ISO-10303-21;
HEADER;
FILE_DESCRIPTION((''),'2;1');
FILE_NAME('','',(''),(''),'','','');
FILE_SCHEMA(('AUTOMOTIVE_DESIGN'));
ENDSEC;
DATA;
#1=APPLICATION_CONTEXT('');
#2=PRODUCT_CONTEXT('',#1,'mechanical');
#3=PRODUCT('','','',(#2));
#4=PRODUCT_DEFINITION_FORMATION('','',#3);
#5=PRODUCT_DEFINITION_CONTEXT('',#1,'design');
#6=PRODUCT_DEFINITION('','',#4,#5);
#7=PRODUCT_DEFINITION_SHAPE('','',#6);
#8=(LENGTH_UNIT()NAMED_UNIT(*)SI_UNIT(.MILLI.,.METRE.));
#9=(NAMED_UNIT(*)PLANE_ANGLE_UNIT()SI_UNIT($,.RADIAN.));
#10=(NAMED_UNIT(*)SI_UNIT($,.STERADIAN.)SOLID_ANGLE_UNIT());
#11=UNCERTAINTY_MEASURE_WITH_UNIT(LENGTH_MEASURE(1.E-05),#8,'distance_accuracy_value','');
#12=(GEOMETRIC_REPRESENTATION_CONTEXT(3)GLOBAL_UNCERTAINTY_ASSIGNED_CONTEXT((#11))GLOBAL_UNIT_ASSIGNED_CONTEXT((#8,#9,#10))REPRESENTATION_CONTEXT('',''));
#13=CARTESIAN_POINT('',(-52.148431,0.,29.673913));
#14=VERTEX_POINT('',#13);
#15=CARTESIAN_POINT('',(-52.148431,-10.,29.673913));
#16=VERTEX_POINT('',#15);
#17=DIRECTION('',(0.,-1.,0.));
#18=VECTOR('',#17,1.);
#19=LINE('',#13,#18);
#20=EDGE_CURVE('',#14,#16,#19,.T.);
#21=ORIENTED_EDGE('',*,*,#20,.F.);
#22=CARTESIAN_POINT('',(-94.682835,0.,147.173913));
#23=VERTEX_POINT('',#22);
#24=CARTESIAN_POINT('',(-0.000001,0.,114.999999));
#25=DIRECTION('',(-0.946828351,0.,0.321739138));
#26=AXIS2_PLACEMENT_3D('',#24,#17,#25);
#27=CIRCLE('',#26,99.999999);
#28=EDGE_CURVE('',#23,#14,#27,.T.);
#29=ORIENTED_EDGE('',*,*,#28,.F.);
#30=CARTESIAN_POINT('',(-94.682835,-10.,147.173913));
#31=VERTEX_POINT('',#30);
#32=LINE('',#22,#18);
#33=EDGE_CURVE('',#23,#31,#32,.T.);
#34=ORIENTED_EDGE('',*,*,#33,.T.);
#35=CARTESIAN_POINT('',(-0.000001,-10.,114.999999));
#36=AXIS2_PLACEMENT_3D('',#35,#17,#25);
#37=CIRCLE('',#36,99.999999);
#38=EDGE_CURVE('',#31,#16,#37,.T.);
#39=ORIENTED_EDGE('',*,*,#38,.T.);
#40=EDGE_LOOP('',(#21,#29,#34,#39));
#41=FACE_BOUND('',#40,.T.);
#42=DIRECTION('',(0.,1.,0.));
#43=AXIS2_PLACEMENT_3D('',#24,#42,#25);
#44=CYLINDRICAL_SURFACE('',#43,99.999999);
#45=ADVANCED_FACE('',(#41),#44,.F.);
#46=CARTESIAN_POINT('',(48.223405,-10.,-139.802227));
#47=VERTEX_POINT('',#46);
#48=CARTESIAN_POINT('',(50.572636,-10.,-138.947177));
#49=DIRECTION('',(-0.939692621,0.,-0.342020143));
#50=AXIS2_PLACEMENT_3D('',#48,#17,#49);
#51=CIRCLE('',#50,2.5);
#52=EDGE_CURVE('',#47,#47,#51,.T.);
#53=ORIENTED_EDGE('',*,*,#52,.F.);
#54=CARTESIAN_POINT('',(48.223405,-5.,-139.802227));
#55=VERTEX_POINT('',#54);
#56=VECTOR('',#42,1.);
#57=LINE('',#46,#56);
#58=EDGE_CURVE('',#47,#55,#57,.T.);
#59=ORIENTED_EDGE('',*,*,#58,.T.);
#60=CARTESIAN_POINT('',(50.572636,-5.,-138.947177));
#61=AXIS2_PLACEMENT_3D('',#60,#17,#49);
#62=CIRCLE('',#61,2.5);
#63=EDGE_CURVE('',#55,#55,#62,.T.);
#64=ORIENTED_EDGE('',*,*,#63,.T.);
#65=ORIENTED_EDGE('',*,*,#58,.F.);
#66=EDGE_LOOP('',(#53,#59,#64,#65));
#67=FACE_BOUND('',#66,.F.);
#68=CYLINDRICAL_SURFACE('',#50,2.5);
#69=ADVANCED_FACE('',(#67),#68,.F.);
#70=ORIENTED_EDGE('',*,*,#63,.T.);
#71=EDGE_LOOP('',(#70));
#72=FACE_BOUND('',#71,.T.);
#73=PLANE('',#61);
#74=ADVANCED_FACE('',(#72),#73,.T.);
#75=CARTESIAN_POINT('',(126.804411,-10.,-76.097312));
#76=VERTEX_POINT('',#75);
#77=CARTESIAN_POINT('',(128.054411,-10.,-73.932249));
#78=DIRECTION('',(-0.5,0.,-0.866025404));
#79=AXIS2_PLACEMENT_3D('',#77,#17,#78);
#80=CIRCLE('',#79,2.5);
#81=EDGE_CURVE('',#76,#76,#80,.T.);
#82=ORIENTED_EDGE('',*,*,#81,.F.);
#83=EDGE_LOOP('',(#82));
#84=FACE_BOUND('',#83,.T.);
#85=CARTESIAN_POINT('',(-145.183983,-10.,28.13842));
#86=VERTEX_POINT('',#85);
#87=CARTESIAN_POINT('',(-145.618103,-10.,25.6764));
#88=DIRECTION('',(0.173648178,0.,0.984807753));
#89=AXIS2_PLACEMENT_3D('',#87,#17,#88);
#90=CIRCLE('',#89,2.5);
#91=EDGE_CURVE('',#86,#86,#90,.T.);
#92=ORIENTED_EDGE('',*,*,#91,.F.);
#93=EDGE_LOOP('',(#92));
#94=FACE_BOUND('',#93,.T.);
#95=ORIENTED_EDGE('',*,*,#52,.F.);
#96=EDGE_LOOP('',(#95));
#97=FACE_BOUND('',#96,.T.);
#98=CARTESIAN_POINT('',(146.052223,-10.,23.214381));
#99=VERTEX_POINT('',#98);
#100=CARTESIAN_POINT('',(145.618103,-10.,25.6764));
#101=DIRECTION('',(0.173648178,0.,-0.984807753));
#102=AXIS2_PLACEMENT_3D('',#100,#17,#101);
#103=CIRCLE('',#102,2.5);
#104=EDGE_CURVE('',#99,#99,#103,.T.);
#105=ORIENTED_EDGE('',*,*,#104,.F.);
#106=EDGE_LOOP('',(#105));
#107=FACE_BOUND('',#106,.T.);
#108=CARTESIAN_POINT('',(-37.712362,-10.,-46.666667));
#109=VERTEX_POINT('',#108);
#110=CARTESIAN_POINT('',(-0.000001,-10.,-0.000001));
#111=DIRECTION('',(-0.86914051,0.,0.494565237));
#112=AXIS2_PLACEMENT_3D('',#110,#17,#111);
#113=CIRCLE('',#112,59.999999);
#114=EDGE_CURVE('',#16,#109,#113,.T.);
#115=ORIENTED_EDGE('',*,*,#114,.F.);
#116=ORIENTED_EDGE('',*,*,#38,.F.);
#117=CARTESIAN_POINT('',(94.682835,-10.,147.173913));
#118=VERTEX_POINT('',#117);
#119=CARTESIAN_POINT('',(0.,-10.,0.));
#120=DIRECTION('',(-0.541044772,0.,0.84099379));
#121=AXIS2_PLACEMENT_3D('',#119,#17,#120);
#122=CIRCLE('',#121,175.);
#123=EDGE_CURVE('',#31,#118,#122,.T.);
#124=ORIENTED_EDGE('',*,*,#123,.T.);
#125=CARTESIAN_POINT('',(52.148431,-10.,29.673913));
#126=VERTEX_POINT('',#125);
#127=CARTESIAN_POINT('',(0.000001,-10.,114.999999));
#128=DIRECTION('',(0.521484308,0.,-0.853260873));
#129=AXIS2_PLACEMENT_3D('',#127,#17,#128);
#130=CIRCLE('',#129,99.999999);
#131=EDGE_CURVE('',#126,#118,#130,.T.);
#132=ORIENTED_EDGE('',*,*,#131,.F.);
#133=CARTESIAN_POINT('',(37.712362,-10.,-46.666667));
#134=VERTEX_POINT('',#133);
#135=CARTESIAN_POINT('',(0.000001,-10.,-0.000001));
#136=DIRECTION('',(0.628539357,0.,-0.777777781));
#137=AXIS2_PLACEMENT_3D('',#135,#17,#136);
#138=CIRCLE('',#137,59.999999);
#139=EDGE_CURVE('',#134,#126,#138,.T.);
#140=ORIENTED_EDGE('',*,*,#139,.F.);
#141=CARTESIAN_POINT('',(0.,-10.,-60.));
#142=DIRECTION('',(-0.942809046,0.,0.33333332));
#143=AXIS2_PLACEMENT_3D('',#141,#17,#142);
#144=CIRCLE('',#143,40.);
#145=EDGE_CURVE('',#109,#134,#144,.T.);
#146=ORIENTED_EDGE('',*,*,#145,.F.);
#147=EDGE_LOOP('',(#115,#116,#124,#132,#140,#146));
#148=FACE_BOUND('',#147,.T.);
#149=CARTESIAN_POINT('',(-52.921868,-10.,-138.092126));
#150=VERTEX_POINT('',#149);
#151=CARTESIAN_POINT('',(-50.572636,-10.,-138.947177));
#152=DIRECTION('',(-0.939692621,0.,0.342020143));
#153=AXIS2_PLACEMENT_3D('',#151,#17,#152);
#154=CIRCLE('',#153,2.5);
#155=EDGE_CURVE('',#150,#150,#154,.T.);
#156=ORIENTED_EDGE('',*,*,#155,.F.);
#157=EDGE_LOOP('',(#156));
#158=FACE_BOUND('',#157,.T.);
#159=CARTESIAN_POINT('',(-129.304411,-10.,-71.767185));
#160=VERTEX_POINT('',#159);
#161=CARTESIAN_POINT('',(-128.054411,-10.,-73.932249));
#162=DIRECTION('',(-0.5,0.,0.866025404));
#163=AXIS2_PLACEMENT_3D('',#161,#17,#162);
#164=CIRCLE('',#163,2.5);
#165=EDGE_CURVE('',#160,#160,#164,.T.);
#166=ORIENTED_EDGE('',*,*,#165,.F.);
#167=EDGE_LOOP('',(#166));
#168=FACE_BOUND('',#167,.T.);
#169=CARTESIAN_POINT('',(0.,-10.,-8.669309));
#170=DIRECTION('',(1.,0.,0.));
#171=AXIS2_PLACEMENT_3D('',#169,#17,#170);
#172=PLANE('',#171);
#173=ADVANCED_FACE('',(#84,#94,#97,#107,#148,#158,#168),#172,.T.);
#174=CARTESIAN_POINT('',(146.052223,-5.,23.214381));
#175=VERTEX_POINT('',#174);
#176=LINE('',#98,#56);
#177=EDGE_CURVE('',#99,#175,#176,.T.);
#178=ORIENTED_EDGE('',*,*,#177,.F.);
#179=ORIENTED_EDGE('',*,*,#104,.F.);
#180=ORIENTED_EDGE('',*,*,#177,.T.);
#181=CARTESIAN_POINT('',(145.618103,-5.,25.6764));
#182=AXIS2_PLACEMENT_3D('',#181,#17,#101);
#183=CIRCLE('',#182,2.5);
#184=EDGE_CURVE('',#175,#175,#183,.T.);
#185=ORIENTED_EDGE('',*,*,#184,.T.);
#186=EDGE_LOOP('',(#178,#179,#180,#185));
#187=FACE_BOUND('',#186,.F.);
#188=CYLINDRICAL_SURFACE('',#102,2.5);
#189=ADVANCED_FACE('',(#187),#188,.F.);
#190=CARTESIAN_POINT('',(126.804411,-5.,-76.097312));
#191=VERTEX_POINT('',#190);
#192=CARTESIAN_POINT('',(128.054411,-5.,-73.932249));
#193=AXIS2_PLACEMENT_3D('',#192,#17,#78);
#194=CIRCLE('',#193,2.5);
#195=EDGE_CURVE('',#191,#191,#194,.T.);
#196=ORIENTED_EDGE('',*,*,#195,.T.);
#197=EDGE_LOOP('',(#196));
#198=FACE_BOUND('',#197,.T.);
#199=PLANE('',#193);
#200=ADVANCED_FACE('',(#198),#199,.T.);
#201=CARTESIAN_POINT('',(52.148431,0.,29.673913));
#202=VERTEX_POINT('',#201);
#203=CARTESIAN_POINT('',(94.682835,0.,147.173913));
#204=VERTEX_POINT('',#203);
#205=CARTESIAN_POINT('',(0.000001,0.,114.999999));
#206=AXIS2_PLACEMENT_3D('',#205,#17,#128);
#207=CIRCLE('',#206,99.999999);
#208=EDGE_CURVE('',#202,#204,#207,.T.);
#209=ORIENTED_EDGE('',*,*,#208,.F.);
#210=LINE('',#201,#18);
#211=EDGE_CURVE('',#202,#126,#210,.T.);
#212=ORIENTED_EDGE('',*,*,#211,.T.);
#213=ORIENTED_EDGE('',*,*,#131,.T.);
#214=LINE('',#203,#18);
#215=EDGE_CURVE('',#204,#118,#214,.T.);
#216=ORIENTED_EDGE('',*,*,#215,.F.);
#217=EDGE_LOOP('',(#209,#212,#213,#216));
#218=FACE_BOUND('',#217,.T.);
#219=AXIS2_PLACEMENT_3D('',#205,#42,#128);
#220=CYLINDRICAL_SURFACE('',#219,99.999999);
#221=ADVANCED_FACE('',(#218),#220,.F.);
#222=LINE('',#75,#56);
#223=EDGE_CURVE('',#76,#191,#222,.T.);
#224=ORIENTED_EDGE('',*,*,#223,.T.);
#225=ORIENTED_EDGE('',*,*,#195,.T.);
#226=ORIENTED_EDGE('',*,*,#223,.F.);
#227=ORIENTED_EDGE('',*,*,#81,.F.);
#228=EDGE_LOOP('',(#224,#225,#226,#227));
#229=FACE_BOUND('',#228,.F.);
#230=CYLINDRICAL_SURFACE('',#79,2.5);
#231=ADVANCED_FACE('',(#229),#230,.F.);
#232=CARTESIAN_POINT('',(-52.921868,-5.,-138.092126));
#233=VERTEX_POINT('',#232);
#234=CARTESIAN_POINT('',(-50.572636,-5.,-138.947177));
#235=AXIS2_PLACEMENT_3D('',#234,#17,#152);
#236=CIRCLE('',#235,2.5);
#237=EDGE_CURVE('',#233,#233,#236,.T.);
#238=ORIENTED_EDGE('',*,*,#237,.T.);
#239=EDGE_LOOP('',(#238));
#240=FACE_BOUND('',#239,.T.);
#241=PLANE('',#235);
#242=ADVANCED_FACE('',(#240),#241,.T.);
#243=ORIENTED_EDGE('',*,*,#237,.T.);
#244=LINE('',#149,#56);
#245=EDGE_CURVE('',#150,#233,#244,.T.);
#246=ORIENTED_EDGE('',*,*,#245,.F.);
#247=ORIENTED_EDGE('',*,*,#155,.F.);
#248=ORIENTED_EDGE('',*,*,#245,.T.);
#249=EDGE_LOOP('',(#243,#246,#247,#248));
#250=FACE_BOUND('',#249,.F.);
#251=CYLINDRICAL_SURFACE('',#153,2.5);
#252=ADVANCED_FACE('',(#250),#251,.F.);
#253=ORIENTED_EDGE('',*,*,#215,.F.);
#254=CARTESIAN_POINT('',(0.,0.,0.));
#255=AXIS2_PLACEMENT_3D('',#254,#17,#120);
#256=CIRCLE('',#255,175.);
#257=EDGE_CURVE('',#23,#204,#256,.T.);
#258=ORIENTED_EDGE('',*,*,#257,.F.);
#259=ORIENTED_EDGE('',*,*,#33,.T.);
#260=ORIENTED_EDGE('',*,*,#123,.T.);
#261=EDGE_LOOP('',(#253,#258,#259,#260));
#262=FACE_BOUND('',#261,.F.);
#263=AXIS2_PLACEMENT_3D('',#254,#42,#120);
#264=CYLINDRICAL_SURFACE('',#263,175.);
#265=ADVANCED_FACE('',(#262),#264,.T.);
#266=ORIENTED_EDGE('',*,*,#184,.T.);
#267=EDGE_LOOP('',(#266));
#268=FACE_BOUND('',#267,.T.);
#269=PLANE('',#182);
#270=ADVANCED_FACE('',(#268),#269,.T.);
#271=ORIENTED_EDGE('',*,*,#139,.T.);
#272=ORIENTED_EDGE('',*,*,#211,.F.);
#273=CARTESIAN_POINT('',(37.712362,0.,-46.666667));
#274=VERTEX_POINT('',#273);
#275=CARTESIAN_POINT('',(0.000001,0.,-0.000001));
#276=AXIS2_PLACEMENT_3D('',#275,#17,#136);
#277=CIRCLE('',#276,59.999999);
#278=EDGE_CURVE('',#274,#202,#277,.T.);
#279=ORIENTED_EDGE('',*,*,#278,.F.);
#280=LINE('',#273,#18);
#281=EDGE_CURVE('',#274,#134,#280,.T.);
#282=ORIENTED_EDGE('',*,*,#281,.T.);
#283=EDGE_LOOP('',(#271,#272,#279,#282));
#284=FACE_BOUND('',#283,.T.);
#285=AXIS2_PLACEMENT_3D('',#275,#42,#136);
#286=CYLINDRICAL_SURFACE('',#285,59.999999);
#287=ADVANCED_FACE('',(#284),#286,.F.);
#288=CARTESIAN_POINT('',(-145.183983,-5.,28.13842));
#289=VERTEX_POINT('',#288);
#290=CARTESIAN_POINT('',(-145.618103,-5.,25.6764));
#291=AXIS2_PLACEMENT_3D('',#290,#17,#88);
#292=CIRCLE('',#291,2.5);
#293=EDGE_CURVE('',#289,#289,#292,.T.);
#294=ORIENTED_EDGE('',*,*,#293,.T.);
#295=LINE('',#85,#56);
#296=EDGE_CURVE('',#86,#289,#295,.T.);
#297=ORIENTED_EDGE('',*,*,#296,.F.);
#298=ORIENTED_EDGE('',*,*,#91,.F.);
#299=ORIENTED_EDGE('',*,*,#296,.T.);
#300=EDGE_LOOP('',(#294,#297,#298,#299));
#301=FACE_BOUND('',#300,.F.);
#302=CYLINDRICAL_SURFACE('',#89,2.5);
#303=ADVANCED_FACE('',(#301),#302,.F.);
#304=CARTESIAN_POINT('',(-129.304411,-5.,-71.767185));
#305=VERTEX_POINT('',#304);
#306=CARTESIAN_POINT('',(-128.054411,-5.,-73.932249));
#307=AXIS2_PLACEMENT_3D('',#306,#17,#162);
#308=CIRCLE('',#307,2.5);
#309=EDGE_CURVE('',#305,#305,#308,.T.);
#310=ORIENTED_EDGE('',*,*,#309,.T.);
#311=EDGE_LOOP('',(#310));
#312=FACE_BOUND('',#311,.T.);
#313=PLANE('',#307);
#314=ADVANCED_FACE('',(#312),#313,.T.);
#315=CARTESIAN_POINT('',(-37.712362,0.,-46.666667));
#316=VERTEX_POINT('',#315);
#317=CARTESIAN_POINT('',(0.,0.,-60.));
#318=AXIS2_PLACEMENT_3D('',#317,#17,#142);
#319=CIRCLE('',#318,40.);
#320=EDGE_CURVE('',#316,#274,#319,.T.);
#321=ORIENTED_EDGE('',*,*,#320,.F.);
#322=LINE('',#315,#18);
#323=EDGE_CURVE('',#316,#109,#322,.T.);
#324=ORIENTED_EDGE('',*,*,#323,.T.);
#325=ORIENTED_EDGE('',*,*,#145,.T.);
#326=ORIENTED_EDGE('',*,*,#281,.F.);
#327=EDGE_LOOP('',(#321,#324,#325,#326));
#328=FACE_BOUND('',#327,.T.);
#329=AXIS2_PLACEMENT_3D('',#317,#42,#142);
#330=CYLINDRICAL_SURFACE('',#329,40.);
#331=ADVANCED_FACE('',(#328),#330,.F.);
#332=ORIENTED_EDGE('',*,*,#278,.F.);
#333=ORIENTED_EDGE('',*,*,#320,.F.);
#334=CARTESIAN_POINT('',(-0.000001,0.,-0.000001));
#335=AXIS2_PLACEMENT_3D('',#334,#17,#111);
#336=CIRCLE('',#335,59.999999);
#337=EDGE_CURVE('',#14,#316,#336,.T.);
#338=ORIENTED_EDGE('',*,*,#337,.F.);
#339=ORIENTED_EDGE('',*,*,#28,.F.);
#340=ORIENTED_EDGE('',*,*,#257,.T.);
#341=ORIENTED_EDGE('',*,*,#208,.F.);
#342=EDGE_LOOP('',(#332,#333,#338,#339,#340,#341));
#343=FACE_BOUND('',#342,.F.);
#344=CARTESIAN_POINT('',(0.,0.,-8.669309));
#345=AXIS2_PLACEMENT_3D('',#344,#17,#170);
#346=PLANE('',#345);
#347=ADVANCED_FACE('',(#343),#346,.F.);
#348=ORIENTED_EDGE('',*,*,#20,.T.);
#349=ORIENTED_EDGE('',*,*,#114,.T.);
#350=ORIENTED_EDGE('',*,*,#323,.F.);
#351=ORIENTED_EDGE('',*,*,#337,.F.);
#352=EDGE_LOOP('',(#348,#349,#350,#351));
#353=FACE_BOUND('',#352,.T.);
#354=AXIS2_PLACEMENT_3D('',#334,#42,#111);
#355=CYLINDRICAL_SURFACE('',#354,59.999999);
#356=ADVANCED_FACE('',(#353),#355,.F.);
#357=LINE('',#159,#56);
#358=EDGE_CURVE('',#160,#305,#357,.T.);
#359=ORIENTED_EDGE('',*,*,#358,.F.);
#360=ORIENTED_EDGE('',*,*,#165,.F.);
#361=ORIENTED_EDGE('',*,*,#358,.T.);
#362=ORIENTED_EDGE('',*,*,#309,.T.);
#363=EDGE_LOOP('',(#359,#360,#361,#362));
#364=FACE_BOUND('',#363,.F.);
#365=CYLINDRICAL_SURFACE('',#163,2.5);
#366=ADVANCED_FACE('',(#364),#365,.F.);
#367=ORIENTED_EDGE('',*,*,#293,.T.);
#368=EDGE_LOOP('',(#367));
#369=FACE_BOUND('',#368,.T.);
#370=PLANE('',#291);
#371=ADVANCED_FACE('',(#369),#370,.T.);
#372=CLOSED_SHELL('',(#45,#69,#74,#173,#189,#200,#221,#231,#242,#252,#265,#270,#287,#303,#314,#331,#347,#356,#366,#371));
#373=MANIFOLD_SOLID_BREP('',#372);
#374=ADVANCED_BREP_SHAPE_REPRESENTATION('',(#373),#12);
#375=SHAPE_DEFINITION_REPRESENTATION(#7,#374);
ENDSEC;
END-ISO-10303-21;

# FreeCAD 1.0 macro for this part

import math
import FreeCAD as App
import Part
import Sketcher
from FreeCAD import Vector

doc = App.newDocument("Part")
params = doc.addObject("Spreadsheet::Sheet", "Params")
for row, (alias, value) in enumerate([
    ("sketch1_radius", "175 mm"),
    ("sketch1_radius2", "99.999999 mm"),
    ("sketch1_radius3", "59.999999 mm"),
    ("sketch1_radius4", "40 mm"),
    ("pad1_length", "10 mm"),
    ("sketch2_diameter", "5 mm"),
    ("pocket1_length", "5 mm"),
], start=1):
    params.set(f"A{row}", alias)
    params.set(f"B{row}", "=" + value)
    params.setAlias(f"B{row}", alias)

body = doc.addObject("PartDesign::Body", "Body")

# Sketch on XZ plane
sketch1 = body.newObject("Sketcher::SketchObject", "Sketch")
sketch1.AttachmentSupport = (doc.getObject("XZ_Plane"), [""])
sketch1.MapMode = "FlatFace"
sketch1.addGeometry([
    Part.ArcOfCircle(Part.Circle(Vector(0, 0, 0), Vector(0, 0, 1), 175), math.radians(123), math.radians(417)),  # 0
    Part.ArcOfCircle(Part.Circle(Vector(0, 115, 0), Vector(0, 0, 1), 100), math.radians(-59), math.radians(19)),  # 1
    Part.ArcOfCircle(Part.Circle(Vector(0, 0, 0), Vector(0, 0, 1), 60), math.radians(-51), math.radians(30)),  # 2
    Part.ArcOfCircle(Part.Circle(Vector(0, -60, 0), Vector(0, 0, 1), 40), math.radians(161), math.radians(379)),  # 3
    Part.ArcOfCircle(Part.Circle(Vector(0, 0, 0), Vector(0, 0, 1), 60), math.radians(150), math.radians(231)),  # 4
    Part.ArcOfCircle(Part.Circle(Vector(0, 115, 0), Vector(0, 0, 1), 100), math.radians(161), math.radians(239)),  # 5
], False)
sketch1.addConstraint([
    Sketcher.Constraint("Coincident", 0, 2, 1, 2),
    Sketcher.Constraint("Coincident", 1, 1, 2, 2),
    Sketcher.Constraint("Coincident", 2, 1, 3, 2),
    Sketcher.Constraint("Coincident", 3, 1, 4, 2),
    Sketcher.Constraint("Coincident", 4, 1, 5, 2),
    Sketcher.Constraint("Coincident", 5, 1, 0, 1),
    Sketcher.Constraint("Coincident", 0, 3, -1, 1),
    Sketcher.Constraint("Coincident", 2, 3, -1, 1),
    Sketcher.Constraint("Coincident", 4, 3, -1, 1),
    Sketcher.Constraint("Coincident", 5, 3, 1, 3),
    Sketcher.Constraint("Equal", 2, 4),
    Sketcher.Constraint("Equal", 1, 5),
    Sketcher.Constraint("PointOnObject", 1, 3, -2),
    Sketcher.Constraint("PointOnObject", 3, 3, -2),
    Sketcher.Constraint("Radius", 0, 175.0),
    Sketcher.Constraint("Radius", 1, 99.999999),
    Sketcher.Constraint("Radius", 2, 59.999999),
    Sketcher.Constraint("Radius", 3, 40.0),
    Sketcher.Constraint("DistanceY", -1, 1, 1, 3, 115.0),
    Sketcher.Constraint("DistanceY", 3, 3, -1, 1, 60.0),
])
sketch1.setExpression("Constraints[14]", "Params.sketch1_radius")
sketch1.setExpression("Constraints[15]", "Params.sketch1_radius2")
sketch1.setExpression("Constraints[16]", "Params.sketch1_radius3")
sketch1.setExpression("Constraints[17]", "Params.sketch1_radius4")
pad1 = body.newObject("PartDesign::Pad", "Pad")
pad1.Profile = sketch1
pad1.setExpression("Length", "Params.pad1_length")

# Sketch on XZ plane
sketch2 = body.newObject("Sketcher::SketchObject", "Sketch001")
sketch2.AttachmentSupport = (doc.getObject("XZ_Plane"), [""])
sketch2.MapMode = "FlatFace"
sketch2.AttachmentOffset = App.Placement(Vector(0, 0, 10), App.Rotation())
sketch2.addGeometry(Part.Circle(Vector(0, 147.9, 0), Vector(0, 0, 1), 2.5), False)
sketch2.addConstraint([
    Sketcher.Constraint("PointOnObject", 0, 3, -2),
    Sketcher.Constraint("Diameter", 0, 5.0),
    Sketcher.Constraint("DistanceY", -1, 1, 0, 3, 147.864497),
])
sketch2.setExpression("Constraints[1]", "Params.sketch2_diameter")
pocket1 = body.newObject("PartDesign::Pocket", "Pocket")
pocket1.Profile = sketch2
pocket1.setExpression("Length", "Params.pocket1_length")
doc.recompute()

polarpattern = body.newObject("PartDesign::PolarPattern", "PolarPattern")
polarpattern.Originals = [pocket1]
polarpattern.Axis = (doc.getObject("Y_Axis"), [""])
polarpattern.Angle = 360
polarpattern.Occurrences = 9
body.Tip = polarpattern

doc.recompute()
